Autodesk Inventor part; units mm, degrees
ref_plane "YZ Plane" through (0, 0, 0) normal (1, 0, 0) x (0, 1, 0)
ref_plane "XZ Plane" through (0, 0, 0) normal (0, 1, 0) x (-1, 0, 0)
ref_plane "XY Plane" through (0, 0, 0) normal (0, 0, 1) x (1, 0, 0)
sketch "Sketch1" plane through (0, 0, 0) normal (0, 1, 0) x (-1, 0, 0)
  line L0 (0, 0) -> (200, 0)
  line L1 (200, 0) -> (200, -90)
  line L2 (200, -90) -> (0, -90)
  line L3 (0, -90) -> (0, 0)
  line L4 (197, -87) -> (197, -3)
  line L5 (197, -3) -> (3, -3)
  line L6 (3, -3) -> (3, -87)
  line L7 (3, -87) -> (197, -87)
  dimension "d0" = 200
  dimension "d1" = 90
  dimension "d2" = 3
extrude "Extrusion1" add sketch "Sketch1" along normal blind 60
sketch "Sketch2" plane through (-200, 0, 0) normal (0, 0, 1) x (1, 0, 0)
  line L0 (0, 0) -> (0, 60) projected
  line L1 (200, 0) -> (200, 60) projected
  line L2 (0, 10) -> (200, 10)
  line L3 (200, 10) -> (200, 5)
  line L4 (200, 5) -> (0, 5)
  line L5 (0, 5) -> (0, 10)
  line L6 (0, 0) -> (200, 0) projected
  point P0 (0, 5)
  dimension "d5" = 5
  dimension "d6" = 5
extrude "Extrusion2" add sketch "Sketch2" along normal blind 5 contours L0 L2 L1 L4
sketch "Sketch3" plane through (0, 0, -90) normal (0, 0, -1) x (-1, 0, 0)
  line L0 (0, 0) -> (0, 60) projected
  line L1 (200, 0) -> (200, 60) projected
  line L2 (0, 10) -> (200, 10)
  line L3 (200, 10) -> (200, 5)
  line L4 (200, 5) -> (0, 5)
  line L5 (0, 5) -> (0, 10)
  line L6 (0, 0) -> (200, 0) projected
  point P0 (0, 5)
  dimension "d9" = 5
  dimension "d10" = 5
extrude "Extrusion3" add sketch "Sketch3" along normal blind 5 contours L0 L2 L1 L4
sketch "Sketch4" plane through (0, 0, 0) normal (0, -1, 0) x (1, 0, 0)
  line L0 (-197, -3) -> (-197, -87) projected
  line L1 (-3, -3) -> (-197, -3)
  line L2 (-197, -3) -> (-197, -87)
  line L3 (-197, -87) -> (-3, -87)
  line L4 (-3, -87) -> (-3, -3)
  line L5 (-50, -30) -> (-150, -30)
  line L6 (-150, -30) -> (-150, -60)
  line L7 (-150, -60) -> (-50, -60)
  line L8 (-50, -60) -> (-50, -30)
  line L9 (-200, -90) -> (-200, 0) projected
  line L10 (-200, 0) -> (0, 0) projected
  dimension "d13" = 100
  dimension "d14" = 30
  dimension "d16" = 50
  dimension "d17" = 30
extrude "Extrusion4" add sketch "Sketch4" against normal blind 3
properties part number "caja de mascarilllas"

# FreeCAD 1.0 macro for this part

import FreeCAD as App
import Part
import Sketcher

V = App.Vector
Q = App.Units.Quantity

doc = App.newDocument("Part")
body = doc.addObject("PartDesign::Body", "Body")

# Sketch on XZ plane
sketch1 = body.newObject("Sketcher::SketchObject", "Sketch")
sketch1.AttachmentSupport = (doc.getObject("XZ_Plane"), [""])
sketch1.MapMode = "FlatFace"
sketch1.addGeometry(Part.LineSegment(V(-200, 0, 0), V(0, 0, 0)), False)
sketch1.addGeometry(Part.LineSegment(V(0, 0, 0), V(0, -90, 0)), False)
sketch1.addGeometry(Part.LineSegment(V(0, -90, 0), V(-200, -90, 0)), False)
sketch1.addGeometry(Part.LineSegment(V(-200, -90, 0), V(-200, 0, 0)), False)
sketch1.addGeometry(Part.LineSegment(V(-197, -3, 0), V(-197, -87, 0)), False)
sketch1.addGeometry(Part.LineSegment(V(-197, -87, 0), V(-3, -87, 0)), False)
sketch1.addGeometry(Part.LineSegment(V(-3, -87, 0), V(-3, -3, 0)), False)
sketch1.addGeometry(Part.LineSegment(V(-3, -3, 0), V(-197, -3, 0)), False)
sketch1.addConstraint(Sketcher.Constraint("Coincident", 0, 2, 1, 1))
sketch1.addConstraint(Sketcher.Constraint("Coincident", 1, 2, 2, 1))
sketch1.addConstraint(Sketcher.Constraint("Coincident", 2, 2, 3, 1))
sketch1.addConstraint(Sketcher.Constraint("Coincident", 3, 2, 0, 1))
sketch1.addConstraint(Sketcher.Constraint("Coincident", 4, 2, 5, 1))
sketch1.addConstraint(Sketcher.Constraint("Coincident", 5, 2, 6, 1))
sketch1.addConstraint(Sketcher.Constraint("Coincident", 6, 2, 7, 1))
sketch1.addConstraint(Sketcher.Constraint("Coincident", 7, 2, 4, 1))
sketch1.addConstraint(Sketcher.Constraint("Horizontal", 0))
sketch1.addConstraint(Sketcher.Constraint("Vertical", 1))
sketch1.addConstraint(Sketcher.Constraint("Horizontal", 2))
sketch1.addConstraint(Sketcher.Constraint("Vertical", 3))
sketch1.addConstraint(Sketcher.Constraint("Vertical", 4))
sketch1.addConstraint(Sketcher.Constraint("Horizontal", 5))
sketch1.addConstraint(Sketcher.Constraint("Vertical", 6))
sketch1.addConstraint(Sketcher.Constraint("Horizontal", 7))
sketch1.addConstraint(Sketcher.Constraint("Coincident", 0, 2, -1, 1))
sketch1.addConstraint(Sketcher.Constraint("DistanceX", 0, 1, 0, 2, Q("200 mm")))
sketch1.addConstraint(Sketcher.Constraint("DistanceY", 1, 2, 1, 1, Q("90 mm")))
sketch1.addConstraint(Sketcher.Constraint("DistanceX", 5, 2, -1, 1, Q("3 mm")))
sketch1.addConstraint(Sketcher.Constraint("DistanceY", 6, 2, -1, 1, Q("3 mm")))
sketch1.addConstraint(Sketcher.Constraint("DistanceX", 2, 2, 4, 2, Q("3 mm")))
sketch1.addConstraint(Sketcher.Constraint("DistanceY", 2, 2, 4, 2, Q("3 mm")))
pad1 = body.newObject("PartDesign::Pad", "Pad")
pad1.Profile = sketch1
pad1.Length = 60
pad1.Reversed = True

# Sketch on XY plane
sketch2 = body.newObject("Sketcher::SketchObject", "Sketch001")
sketch2.AttachmentSupport = (doc.getObject("XY_Plane"), [""])
sketch2.MapMode = "FlatFace"
sketch2.addGeometry(Part.LineSegment(V(-200, 10, 0), V(-200, 5, 0)), False)
sketch2.addGeometry(Part.LineSegment(V(-200, 5, 0), V(0, 5, 0)), False)
sketch2.addGeometry(Part.LineSegment(V(0, 5, 0), V(0, 10, 0)), False)
sketch2.addGeometry(Part.LineSegment(V(0, 10, 0), V(-200, 10, 0)), False)
sketch2.addConstraint(Sketcher.Constraint("Coincident", 0, 2, 1, 1))
sketch2.addConstraint(Sketcher.Constraint("Coincident", 1, 2, 2, 1))
sketch2.addConstraint(Sketcher.Constraint("Coincident", 2, 2, 3, 1))
sketch2.addConstraint(Sketcher.Constraint("Coincident", 3, 2, 0, 1))
sketch2.addConstraint(Sketcher.Constraint("Vertical", 0))
sketch2.addConstraint(Sketcher.Constraint("Horizontal", 1))
sketch2.addConstraint(Sketcher.Constraint("Vertical", 2))
sketch2.addConstraint(Sketcher.Constraint("Horizontal", 3))
sketch2.addConstraint(Sketcher.Constraint("PointOnObject", 1, 2, -2))
sketch2.addConstraint(Sketcher.Constraint("DistanceY", 0, 2, 0, 1, Q("5 mm")))
sketch2.addConstraint(Sketcher.Constraint("DistanceY", -1, 1, 0, 2, Q("5 mm")))
sketch2.addConstraint(Sketcher.Constraint("DistanceX", 1, 1, 1, 2, Q("200 mm")))
pad2 = body.newObject("PartDesign::Pad", "Pad001")
pad2.Profile = sketch2
pad2.Length = 5

# Sketch on XY plane
sketch3 = body.newObject("Sketcher::SketchObject", "Sketch002")
sketch3.AttachmentSupport = (doc.getObject("XY_Plane"), [""])
sketch3.MapMode = "FlatFace"
sketch3.AttachmentOffset = App.Placement(V(0, 0, -90), App.Rotation())
sketch3.addGeometry(Part.LineSegment(V(0, 10, 0), V(0, 5, 0)), False)
sketch3.addGeometry(Part.LineSegment(V(0, 5, 0), V(-200, 5, 0)), False)
sketch3.addGeometry(Part.LineSegment(V(-200, 5, 0), V(-200, 10, 0)), False)
sketch3.addGeometry(Part.LineSegment(V(-200, 10, 0), V(0, 10, 0)), False)
sketch3.addConstraint(Sketcher.Constraint("Coincident", 0, 2, 1, 1))
sketch3.addConstraint(Sketcher.Constraint("Coincident", 1, 2, 2, 1))
sketch3.addConstraint(Sketcher.Constraint("Coincident", 2, 2, 3, 1))
sketch3.addConstraint(Sketcher.Constraint("Coincident", 3, 2, 0, 1))
sketch3.addConstraint(Sketcher.Constraint("Vertical", 0))
sketch3.addConstraint(Sketcher.Constraint("Horizontal", 1))
sketch3.addConstraint(Sketcher.Constraint("Vertical", 2))
sketch3.addConstraint(Sketcher.Constraint("Horizontal", 3))
sketch3.addConstraint(Sketcher.Constraint("PointOnObject", 0, 2, -2))
sketch3.addConstraint(Sketcher.Constraint("DistanceY", 0, 2, 0, 1, Q("5 mm")))
sketch3.addConstraint(Sketcher.Constraint("DistanceY", -1, 1, 0, 2, Q("5 mm")))
sketch3.addConstraint(Sketcher.Constraint("DistanceX", 1, 2, 1, 1, Q("200 mm")))
pad3 = body.newObject("PartDesign::Pad", "Pad002")
pad3.Profile = sketch3
pad3.Length = 5
pad3.Reversed = True

# Sketch on XZ plane
sketch4 = body.newObject("Sketcher::SketchObject", "Sketch003")
sketch4.AttachmentSupport = (doc.getObject("XZ_Plane"), [""])
sketch4.MapMode = "FlatFace"
sketch4.addGeometry(Part.LineSegment(V(-3, -3, 0), V(-197, -3, 0)), False)
sketch4.addGeometry(Part.LineSegment(V(-197, -3, 0), V(-197, -87, 0)), False)
sketch4.addGeometry(Part.LineSegment(V(-197, -87, 0), V(-3, -87, 0)), False)
sketch4.addGeometry(Part.LineSegment(V(-3, -87, 0), V(-3, -3, 0)), False)
sketch4.addGeometry(Part.LineSegment(V(-150, -30, 0), V(-50, -30, 0)), False)
sketch4.addGeometry(Part.LineSegment(V(-50, -30, 0), V(-50, -60, 0)), False)
sketch4.addGeometry(Part.LineSegment(V(-50, -60, 0), V(-150, -60, 0)), False)
sketch4.addGeometry(Part.LineSegment(V(-150, -60, 0), V(-150, -30, 0)), False)
sketch4.addConstraint(Sketcher.Constraint("Coincident", 0, 2, 1, 1))
sketch4.addConstraint(Sketcher.Constraint("Coincident", 1, 2, 2, 1))
sketch4.addConstraint(Sketcher.Constraint("Coincident", 2, 2, 3, 1))
sketch4.addConstraint(Sketcher.Constraint("Coincident", 3, 2, 0, 1))
sketch4.addConstraint(Sketcher.Constraint("Coincident", 4, 2, 5, 1))
sketch4.addConstraint(Sketcher.Constraint("Coincident", 5, 2, 6, 1))
sketch4.addConstraint(Sketcher.Constraint("Coincident", 6, 2, 7, 1))
sketch4.addConstraint(Sketcher.Constraint("Coincident", 7, 2, 4, 1))
sketch4.addConstraint(Sketcher.Constraint("Horizontal", 0))
sketch4.addConstraint(Sketcher.Constraint("Vertical", 1))
sketch4.addConstraint(Sketcher.Constraint("Horizontal", 2))
sketch4.addConstraint(Sketcher.Constraint("Vertical", 3))
sketch4.addConstraint(Sketcher.Constraint("Horizontal", 4))
sketch4.addConstraint(Sketcher.Constraint("Vertical", 5))
sketch4.addConstraint(Sketcher.Constraint("Horizontal", 6))
sketch4.addConstraint(Sketcher.Constraint("Vertical", 7))
sketch4.addConstraint(Sketcher.Constraint("DistanceX", 4, 1, 4, 2, Q("100 mm")))
sketch4.addConstraint(Sketcher.Constraint("DistanceY", 5, 2, 5, 1, Q("30 mm")))
sketch4.addConstraint(Sketcher.Constraint("DistanceX", 4, 2, -1, 1, Q("50 mm")))
sketch4.addConstraint(Sketcher.Constraint("DistanceY", 4, 2, -1, 1, Q("30 mm")))
sketch4.addConstraint(Sketcher.Constraint("DistanceX", 0, 2, 0, 1, Q("194 mm")))
sketch4.addConstraint(Sketcher.Constraint("DistanceY", 1, 2, 1, 1, Q("84 mm")))
sketch4.addConstraint(Sketcher.Constraint("DistanceX", 0, 2, -1, 1, Q("197 mm")))
sketch4.addConstraint(Sketcher.Constraint("DistanceY", 0, 2, -1, 1, Q("3 mm")))
pad4 = body.newObject("PartDesign::Pad", "Pad003")
pad4.Profile = sketch4
pad4.Length = 3
pad4.Reversed = True

doc.recompute()
